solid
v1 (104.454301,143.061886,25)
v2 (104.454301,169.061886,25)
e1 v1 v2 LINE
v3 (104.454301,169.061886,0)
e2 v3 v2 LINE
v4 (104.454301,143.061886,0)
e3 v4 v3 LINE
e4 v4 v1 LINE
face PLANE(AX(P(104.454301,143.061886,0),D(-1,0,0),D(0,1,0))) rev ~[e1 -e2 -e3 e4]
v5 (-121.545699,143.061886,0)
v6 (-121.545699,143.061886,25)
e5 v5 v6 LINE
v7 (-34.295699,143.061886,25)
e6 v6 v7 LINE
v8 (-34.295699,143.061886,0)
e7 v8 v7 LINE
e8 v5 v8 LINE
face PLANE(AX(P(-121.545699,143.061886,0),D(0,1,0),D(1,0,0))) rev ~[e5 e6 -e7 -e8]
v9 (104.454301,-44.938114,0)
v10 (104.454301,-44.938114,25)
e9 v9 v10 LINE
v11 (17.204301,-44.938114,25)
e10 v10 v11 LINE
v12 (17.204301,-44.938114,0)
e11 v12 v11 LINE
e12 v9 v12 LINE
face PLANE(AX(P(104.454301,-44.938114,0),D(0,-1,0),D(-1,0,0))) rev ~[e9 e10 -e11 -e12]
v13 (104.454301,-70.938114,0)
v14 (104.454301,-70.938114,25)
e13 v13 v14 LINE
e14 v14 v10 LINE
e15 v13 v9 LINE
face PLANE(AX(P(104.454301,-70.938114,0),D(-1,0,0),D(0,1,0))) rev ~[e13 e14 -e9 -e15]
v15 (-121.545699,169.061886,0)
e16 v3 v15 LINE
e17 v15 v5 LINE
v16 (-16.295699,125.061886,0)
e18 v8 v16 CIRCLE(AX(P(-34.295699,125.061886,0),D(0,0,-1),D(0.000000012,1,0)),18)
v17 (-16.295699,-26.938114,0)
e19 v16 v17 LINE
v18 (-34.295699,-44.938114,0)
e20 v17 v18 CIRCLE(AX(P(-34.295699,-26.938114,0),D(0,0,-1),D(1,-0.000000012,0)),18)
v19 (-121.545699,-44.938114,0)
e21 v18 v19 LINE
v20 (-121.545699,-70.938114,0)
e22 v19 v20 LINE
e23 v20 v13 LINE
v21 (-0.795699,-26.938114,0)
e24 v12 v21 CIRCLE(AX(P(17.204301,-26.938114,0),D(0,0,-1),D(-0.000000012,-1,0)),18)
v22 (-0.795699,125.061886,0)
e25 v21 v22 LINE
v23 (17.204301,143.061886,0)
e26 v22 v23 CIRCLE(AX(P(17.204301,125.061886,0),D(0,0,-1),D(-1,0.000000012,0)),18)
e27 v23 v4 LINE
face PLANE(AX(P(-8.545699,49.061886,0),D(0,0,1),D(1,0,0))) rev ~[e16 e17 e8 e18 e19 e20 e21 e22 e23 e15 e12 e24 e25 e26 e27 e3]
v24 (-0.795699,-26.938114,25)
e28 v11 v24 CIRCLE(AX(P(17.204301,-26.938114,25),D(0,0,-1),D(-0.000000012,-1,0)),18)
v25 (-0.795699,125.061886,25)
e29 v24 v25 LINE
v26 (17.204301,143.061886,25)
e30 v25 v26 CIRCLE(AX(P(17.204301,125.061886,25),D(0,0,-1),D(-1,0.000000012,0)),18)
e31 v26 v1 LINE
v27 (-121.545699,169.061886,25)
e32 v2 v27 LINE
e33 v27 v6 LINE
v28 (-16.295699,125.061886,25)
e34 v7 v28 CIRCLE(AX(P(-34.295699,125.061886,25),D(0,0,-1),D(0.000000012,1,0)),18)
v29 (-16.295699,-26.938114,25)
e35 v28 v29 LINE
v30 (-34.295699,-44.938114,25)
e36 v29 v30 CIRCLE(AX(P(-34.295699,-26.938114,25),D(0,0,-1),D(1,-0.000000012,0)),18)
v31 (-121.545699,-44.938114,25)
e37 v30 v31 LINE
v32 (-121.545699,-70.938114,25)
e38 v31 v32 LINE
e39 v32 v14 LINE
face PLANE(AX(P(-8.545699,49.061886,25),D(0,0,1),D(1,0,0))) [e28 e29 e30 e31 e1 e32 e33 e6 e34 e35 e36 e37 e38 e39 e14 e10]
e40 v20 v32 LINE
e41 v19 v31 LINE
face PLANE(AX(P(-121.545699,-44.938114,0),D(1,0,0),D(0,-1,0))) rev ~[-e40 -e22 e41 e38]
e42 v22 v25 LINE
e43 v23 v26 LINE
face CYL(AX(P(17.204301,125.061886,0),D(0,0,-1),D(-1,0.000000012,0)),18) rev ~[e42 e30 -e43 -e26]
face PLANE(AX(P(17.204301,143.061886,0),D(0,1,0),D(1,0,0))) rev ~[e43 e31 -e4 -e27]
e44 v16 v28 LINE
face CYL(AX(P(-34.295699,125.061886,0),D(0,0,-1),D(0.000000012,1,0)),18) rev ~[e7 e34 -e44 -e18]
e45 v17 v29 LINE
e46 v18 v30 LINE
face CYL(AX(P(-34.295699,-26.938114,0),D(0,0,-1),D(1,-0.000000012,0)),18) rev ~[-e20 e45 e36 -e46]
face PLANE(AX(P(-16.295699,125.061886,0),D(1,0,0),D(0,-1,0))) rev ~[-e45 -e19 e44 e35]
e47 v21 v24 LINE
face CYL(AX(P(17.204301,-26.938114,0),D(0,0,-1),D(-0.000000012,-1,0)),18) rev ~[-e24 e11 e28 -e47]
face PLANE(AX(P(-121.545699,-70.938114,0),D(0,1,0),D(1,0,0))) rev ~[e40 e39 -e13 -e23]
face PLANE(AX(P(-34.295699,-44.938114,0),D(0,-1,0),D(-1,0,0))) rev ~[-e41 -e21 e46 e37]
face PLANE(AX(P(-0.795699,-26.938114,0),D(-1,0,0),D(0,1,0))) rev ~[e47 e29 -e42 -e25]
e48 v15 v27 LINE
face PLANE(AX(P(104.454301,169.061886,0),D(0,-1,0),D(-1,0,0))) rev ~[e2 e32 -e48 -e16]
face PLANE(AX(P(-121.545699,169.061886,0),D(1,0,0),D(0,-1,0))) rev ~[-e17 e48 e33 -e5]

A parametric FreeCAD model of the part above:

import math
import FreeCAD as App
import Part
import Sketcher

V = App.Vector

doc = App.newDocument("Part")
body = doc.addObject("PartDesign::Body", "Body")

sketch1 = body.newObject("Sketcher::SketchObject", "Sketch")
sketch1.AttachmentSupport = (doc.getObject("XY_Plane"), [""])
sketch1.MapMode = "FlatFace"
sketch1.addGeometry([
    Part.LineSegment(V(-122, 169, 0), V(-122, 143, 0)),
    Part.LineSegment(V(-122, 143, 0), V(-34, 143, 0)),
    Part.ArcOfCircle(Part.Circle(V(-34, 125, 0), V(0, 0, 1), 18), math.radians(0), math.radians(90)),
    Part.LineSegment(V(-16, 125, 0), V(-16, -27, 0)),
    Part.ArcOfCircle(Part.Circle(V(-34, -27, 0), V(0, 0, 1), 18), math.radians(-90), math.radians(0)),
    Part.LineSegment(V(-34, -45, 0), V(-122, -45, 0)),
    Part.LineSegment(V(-122, -45, 0), V(-122, -71, 0)),
    Part.LineSegment(V(-122, -71, 0), V(104, -71, 0)),
    Part.LineSegment(V(104, -71, 0), V(104, -45, 0)),
    Part.LineSegment(V(104, -45, 0), V(17, -45, 0)),
    Part.ArcOfCircle(Part.Circle(V(17, -27, 0), V(0, 0, 1), 18), math.radians(-180), math.radians(-90)),
    Part.LineSegment(V(-1, -27, 0), V(-1, 125, 0)),
    Part.ArcOfCircle(Part.Circle(V(17, 125, 0), V(0, 0, 1), 18), math.radians(90), math.radians(180)),
    Part.LineSegment(V(17, 143, 0), V(104, 143, 0)),
    Part.LineSegment(V(104, 143, 0), V(104, 169, 0)),
    Part.LineSegment(V(104, 169, 0), V(-122, 169, 0)),
], False)
sketch1.addConstraint([
    Sketcher.Constraint("Coincident", 0, 2, 1, 1),
    Sketcher.Constraint("Tangent", 1, 2, 2, 2),
    Sketcher.Constraint("Tangent", 2, 1, 3, 1),
    Sketcher.Constraint("Tangent", 3, 2, 4, 2),
    Sketcher.Constraint("Tangent", 4, 1, 5, 1),
    Sketcher.Constraint("Coincident", 5, 2, 6, 1),
    Sketcher.Constraint("Coincident", 6, 2, 7, 1),
    Sketcher.Constraint("Coincident", 7, 2, 8, 1),
    Sketcher.Constraint("Coincident", 8, 2, 9, 1),
    Sketcher.Constraint("Tangent", 9, 2, 10, 2),
    Sketcher.Constraint("Tangent", 10, 1, 11, 1),
    Sketcher.Constraint("Tangent", 11, 2, 12, 2),
    Sketcher.Constraint("Tangent", 12, 1, 13, 1),
    Sketcher.Constraint("Coincident", 13, 2, 14, 1),
    Sketcher.Constraint("Coincident", 14, 2, 15, 1),
    Sketcher.Constraint("Coincident", 15, 2, 0, 1),
    Sketcher.Constraint("Vertical", 0),
    Sketcher.Constraint("Horizontal", 1),
    Sketcher.Constraint("Vertical", 3),
    Sketcher.Constraint("Horizontal", 5),
    Sketcher.Constraint("Vertical", 6),
    Sketcher.Constraint("Horizontal", 7),
    Sketcher.Constraint("Vertical", 8),
    Sketcher.Constraint("Horizontal", 9),
    Sketcher.Constraint("Vertical", 11),
    Sketcher.Constraint("Horizontal", 13),
    Sketcher.Constraint("Vertical", 14),
    Sketcher.Constraint("Horizontal", 15),
    Sketcher.Constraint("Equal", 2, 4),
    Sketcher.Constraint("Equal", 4, 10),
    Sketcher.Constraint("Equal", 10, 12),
    Sketcher.Constraint("Horizontal", 4, 3, 10, 3),
    Sketcher.Constraint("Horizontal", 2, 3, 12, 3),
    Sketcher.Constraint("Vertical", 0, 2, 5, 2),
    Sketcher.Constraint("Vertical", 8, 2, 13, 2),
    Sketcher.Constraint("Equal", 5, 9),
    Sketcher.Constraint("Equal", 0, 6),
    Sketcher.Constraint("Radius", 2, 18.0),
    Sketcher.Constraint("DistanceX", 7, 1, 7, 2, 226.0),
    Sketcher.Constraint("DistanceY", 0, 2, 0, 1, 26.0),
    Sketcher.Constraint("DistanceY", 3, 2, 3, 1, 152.0),
    Sketcher.Constraint("DistanceX", 1, 1, 1, 2, 87.25),
    Sketcher.Constraint("DistanceX", 2, 3, -1, 1, 34.295699),
    Sketcher.Constraint("DistanceY", -1, 1, 2, 3, 125.061886),
])
pad1 = body.newObject("PartDesign::Pad", "Pad")
pad1.Profile = sketch1
pad1.Length = 25

doc.recompute()
